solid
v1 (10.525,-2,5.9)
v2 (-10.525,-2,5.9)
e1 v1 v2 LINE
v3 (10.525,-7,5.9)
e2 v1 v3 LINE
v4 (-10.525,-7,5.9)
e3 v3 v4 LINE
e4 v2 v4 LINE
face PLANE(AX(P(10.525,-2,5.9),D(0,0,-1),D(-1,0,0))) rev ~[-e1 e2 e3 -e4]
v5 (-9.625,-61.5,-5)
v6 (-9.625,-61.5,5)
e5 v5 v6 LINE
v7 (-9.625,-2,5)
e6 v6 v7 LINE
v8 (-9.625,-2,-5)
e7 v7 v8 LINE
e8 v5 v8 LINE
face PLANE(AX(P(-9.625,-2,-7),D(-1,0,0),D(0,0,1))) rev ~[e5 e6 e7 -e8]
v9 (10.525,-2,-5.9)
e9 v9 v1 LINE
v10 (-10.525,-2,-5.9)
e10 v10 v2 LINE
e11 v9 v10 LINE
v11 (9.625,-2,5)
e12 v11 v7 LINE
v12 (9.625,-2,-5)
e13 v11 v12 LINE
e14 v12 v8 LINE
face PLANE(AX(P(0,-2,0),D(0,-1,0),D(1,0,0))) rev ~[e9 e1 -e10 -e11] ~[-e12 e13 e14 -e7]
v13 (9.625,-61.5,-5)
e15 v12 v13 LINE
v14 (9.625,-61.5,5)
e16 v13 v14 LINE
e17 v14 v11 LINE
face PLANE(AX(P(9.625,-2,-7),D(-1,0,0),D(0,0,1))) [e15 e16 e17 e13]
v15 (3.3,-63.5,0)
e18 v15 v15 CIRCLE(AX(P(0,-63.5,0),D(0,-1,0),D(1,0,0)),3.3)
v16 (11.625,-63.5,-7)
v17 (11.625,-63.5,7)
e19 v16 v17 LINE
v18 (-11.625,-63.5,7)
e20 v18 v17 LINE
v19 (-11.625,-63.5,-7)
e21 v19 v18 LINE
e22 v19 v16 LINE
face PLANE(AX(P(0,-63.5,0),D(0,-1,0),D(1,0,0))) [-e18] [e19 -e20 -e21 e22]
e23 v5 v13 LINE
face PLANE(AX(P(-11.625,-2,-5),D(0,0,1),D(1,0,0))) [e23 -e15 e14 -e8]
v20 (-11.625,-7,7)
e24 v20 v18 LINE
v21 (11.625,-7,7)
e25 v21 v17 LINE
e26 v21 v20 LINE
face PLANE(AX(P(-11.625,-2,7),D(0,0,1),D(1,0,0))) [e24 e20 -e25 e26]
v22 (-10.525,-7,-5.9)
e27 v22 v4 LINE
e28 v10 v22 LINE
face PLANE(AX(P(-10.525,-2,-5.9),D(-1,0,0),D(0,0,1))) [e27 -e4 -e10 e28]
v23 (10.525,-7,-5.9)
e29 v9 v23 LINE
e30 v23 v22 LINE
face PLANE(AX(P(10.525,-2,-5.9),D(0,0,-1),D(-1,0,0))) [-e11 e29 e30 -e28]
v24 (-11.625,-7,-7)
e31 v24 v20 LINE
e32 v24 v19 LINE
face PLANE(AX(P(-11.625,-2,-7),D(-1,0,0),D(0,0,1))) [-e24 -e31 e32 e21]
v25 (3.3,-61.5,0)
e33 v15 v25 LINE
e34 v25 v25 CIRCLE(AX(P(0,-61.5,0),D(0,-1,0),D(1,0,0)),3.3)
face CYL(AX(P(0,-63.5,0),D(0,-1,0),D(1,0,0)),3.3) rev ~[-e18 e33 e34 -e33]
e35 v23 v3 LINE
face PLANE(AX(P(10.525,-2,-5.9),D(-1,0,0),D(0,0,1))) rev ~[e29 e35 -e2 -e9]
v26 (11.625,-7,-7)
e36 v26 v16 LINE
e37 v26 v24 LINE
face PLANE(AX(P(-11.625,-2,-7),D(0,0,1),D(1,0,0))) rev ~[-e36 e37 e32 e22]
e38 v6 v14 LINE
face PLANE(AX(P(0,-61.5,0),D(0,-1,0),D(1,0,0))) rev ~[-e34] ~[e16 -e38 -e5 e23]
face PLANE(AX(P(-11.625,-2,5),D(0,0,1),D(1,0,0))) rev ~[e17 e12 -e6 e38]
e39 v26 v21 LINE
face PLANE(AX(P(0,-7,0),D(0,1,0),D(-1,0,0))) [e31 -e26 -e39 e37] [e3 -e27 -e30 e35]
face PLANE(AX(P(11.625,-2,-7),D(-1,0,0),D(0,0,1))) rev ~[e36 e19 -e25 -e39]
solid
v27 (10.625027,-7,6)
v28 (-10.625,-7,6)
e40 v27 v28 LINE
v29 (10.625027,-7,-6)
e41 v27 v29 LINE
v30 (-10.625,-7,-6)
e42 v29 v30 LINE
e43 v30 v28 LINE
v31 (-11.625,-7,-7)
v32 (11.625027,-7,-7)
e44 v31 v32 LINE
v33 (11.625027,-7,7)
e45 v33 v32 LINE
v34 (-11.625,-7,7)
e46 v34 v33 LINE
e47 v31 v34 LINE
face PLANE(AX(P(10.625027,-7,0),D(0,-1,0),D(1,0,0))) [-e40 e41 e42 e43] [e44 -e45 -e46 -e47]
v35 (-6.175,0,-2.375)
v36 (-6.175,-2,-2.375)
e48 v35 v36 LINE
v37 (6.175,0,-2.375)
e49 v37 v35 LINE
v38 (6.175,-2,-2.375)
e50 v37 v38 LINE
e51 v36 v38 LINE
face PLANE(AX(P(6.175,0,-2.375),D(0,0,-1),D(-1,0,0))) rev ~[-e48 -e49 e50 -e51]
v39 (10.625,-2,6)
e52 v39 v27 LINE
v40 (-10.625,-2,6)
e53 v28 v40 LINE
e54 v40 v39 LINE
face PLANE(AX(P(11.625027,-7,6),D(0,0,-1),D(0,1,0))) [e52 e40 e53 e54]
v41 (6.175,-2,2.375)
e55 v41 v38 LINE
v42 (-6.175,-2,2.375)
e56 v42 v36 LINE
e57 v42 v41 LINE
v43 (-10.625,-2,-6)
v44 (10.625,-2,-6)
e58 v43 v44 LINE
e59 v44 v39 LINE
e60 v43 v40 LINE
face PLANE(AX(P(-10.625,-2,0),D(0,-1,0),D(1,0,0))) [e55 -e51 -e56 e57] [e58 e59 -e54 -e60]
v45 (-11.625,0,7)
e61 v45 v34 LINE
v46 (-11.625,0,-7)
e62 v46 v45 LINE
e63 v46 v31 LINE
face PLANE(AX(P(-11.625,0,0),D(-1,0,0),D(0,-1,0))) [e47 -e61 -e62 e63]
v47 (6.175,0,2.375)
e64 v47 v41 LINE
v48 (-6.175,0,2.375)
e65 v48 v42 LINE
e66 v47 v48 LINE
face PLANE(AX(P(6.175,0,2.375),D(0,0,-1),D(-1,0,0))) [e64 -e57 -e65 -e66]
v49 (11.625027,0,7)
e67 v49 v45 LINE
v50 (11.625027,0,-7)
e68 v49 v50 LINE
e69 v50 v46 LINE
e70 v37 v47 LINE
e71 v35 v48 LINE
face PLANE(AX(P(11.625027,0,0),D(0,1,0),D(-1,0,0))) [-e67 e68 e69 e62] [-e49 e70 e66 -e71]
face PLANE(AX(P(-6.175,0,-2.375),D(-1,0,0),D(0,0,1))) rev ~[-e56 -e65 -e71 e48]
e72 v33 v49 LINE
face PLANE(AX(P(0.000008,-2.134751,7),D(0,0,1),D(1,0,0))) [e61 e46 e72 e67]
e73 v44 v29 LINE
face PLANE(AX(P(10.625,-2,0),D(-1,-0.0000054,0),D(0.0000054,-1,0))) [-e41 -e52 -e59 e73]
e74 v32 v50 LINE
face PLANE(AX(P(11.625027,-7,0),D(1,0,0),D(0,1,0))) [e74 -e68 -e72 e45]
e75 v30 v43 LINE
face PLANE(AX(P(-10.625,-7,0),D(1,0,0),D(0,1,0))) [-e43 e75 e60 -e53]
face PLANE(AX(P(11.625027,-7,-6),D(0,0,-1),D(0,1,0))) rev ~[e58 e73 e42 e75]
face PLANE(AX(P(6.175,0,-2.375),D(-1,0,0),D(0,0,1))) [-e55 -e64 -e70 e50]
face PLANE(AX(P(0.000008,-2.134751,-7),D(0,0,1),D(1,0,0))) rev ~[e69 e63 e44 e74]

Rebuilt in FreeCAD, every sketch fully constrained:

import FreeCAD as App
import Part
import Sketcher
Q = App.Units.Quantity


def faces_at(feature, points):
    """Names of the faces that lie closest to the given points."""
    faces = feature.Shape.Faces
    near = lambda p: min(range(len(faces)), key=lambda i: faces[i].distToShape(Part.Vertex(*p))[0])
    return sorted({f"Face{near(p) + 1}" for p in points})

doc = App.newDocument("Part")
body = doc.addObject("PartDesign::Body", "Body")

# Sketch on XY plane
sketch1 = doc.addObject("Sketcher::SketchObject", "Sketch")
body.addObject(sketch1)
sketch1.AttachmentSupport = (doc.XY_Plane, [""])
sketch1.MapMode = "FlatFace"
sketch1.addGeometry([
    Part.LineSegment(App.Vector(11.6, 0, 0), App.Vector(-11.6, 0, 0)),  # 0
    Part.LineSegment(App.Vector(-11.6, 0, 0), App.Vector(-11.6, -7, 0)),  # 1
    Part.LineSegment(App.Vector(-11.6, -7, 0), App.Vector(-10.6, -7, 0)),  # 2
    Part.LineSegment(App.Vector(-10.6, -7, 0), App.Vector(-10.6, -2, 0)),  # 3
    Part.LineSegment(App.Vector(-10.6, -2, 0), App.Vector(10.6, -2, 0)),  # 4
    Part.LineSegment(App.Vector(10.6, -2, 0), App.Vector(10.6, -7, 0)),  # 5
    Part.LineSegment(App.Vector(10.6, -7, 0), App.Vector(11.6, -7, 0)),  # 6
    Part.LineSegment(App.Vector(11.6, -7, 0), App.Vector(11.6, 0, 0)),  # 7
], False)
sketch1.addConstraint([
    Sketcher.Constraint("Coincident", 0, 2, 1, 1),
    Sketcher.Constraint("Coincident", 1, 2, 2, 1),
    Sketcher.Constraint("Coincident", 2, 2, 3, 1),
    Sketcher.Constraint("Coincident", 3, 2, 4, 1),
    Sketcher.Constraint("Coincident", 4, 2, 5, 1),
    Sketcher.Constraint("Coincident", 5, 2, 6, 1),
    Sketcher.Constraint("Coincident", 6, 2, 7, 1),
    Sketcher.Constraint("Coincident", 7, 2, 0, 1),
    Sketcher.Constraint("Horizontal", 0),
    Sketcher.Constraint("Vertical", 1),
    Sketcher.Constraint("Horizontal", 2),
    Sketcher.Constraint("Vertical", 3),
    Sketcher.Constraint("Horizontal", 4),
    Sketcher.Constraint("Horizontal", 6),
    Sketcher.Constraint("Vertical", 7),
    Sketcher.Constraint("PointOnObject", 0, 2, -1),
    Sketcher.Constraint("Horizontal", 2, 2, 5, 2),
    Sketcher.Constraint("Equal", 2, 6),
    Sketcher.Constraint("DistanceX", 2, 1, 2, 2, Q("1 mm")),
    Sketcher.Constraint("DistanceY", 1, 2, 1, 1, Q("7 mm")),
    Sketcher.Constraint("DistanceY", 3, 1, 3, 2, Q("5 mm")),
    Sketcher.Constraint("DistanceX", 4, 1, 4, 2, Q("21.25 mm")),
    Sketcher.Constraint("DistanceX", 0, 2, -1, 1, Q("11.625 mm")),
    Sketcher.Constraint("DistanceX", 0, 2, 0, 1, Q("23.250027 mm")),
])
pad1 = doc.addObject("PartDesign::Pad", "Pad")
body.addObject(pad1)
pad1.Profile = sketch1
pad1.Type = "TwoLengths"
pad1.Length = 7
pad1.Length2 = 7

# Sketch on YZ plane
sketch2 = doc.addObject("Sketcher::SketchObject", "Sketch001")
body.addObject(sketch2)
sketch2.AttachmentSupport = (doc.YZ_Plane, [""])
sketch2.MapMode = "FlatFace"
sketch2.AttachmentOffset = App.Placement(App.Vector(0, 0, 11.625027), App.Rotation())
sketch2.addGeometry([
    Part.LineSegment(App.Vector(-7, 7, 0), App.Vector(-7, 6, 0)),  # 0
    Part.LineSegment(App.Vector(-7, 6, 0), App.Vector(0, 6, 0)),  # 1
    Part.LineSegment(App.Vector(0, 6, 0), App.Vector(0, 7, 0)),  # 2
    Part.LineSegment(App.Vector(0, 7, 0), App.Vector(-7, 7, 0)),  # 3
    Part.LineSegment(App.Vector(-7, -6, 0), App.Vector(-7, -7, 0)),  # 4
    Part.LineSegment(App.Vector(-7, -7, 0), App.Vector(0, -7, 0)),  # 5
    Part.LineSegment(App.Vector(0, -7, 0), App.Vector(0, -6, 0)),  # 6
    Part.LineSegment(App.Vector(0, -6, 0), App.Vector(-7, -6, 0)),  # 7
], False)
sketch2.addConstraint([
    Sketcher.Constraint("Coincident", 0, 2, 1, 1),
    Sketcher.Constraint("Coincident", 1, 2, 2, 1),
    Sketcher.Constraint("Coincident", 2, 2, 3, 1),
    Sketcher.Constraint("Coincident", 3, 2, 0, 1),
    Sketcher.Constraint("Coincident", 4, 2, 5, 1),
    Sketcher.Constraint("Coincident", 5, 2, 6, 1),
    Sketcher.Constraint("Coincident", 6, 2, 7, 1),
    Sketcher.Constraint("Coincident", 7, 2, 4, 1),
    Sketcher.Constraint("Vertical", 0),
    Sketcher.Constraint("Horizontal", 1),
    Sketcher.Constraint("Vertical", 2),
    Sketcher.Constraint("Horizontal", 3),
    Sketcher.Constraint("Vertical", 4),
    Sketcher.Constraint("Horizontal", 5),
    Sketcher.Constraint("Vertical", 6),
    Sketcher.Constraint("Horizontal", 7),
    Sketcher.Constraint("Symmetric", 2, 2, 5, 2, -1, 1),
    Sketcher.Constraint("Symmetric", 1, 2, 6, 2, -1),
    Sketcher.Constraint("Vertical", 3, 2, 4, 2),
    Sketcher.Constraint("DistanceX", 1, 1, 1, 2, Q("7 mm")),
    Sketcher.Constraint("DistanceY", 0, 2, 0, 1, Q("1 mm")),
    Sketcher.Constraint("DistanceY", -1, 1, 0, 2, Q("6 mm")),
])
pad2 = doc.addObject("PartDesign::Pad", "Pad001")
body.addObject(pad2)
pad2.Profile = sketch2
pad2.Length = 23.250027
pad2.Reversed = True

# Sketch on XZ plane
sketch3 = doc.addObject("Sketcher::SketchObject", "Sketch002")
body.addObject(sketch3)
sketch3.AttachmentSupport = (doc.XZ_Plane, [""])
sketch3.MapMode = "FlatFace"
sketch3.addGeometry([
    Part.LineSegment(App.Vector(6.2, 2.4, 0), App.Vector(6.2, -2.4, 0)),
    Part.LineSegment(App.Vector(6.2, -2.4, 0), App.Vector(-6.2, -2.4, 0)),
    Part.LineSegment(App.Vector(-6.2, -2.4, 0), App.Vector(-6.2, 2.4, 0)),
    Part.LineSegment(App.Vector(-6.2, 2.4, 0), App.Vector(6.2, 2.4, 0)),
], False)
sketch3.addConstraint([
    Sketcher.Constraint("Coincident", 0, 2, 1, 1),
    Sketcher.Constraint("Coincident", 1, 2, 2, 1),
    Sketcher.Constraint("Coincident", 2, 2, 3, 1),
    Sketcher.Constraint("Coincident", 3, 2, 0, 1),
    Sketcher.Constraint("Vertical", 0),
    Sketcher.Constraint("Horizontal", 1),
    Sketcher.Constraint("Vertical", 2),
    Sketcher.Constraint("Horizontal", 3),
    Sketcher.Constraint("Symmetric", 0, 2, 2, 2, -1, 1),
    Sketcher.Constraint("DistanceX", 1, 2, 1, 1, Q("12.35 mm")),
    Sketcher.Constraint("DistanceY", 0, 2, 0, 1, Q("4.75 mm")),
])
pocket1 = doc.addObject("PartDesign::Pocket", "Pocket")
body.addObject(pocket1)
pocket1.Profile = sketch3
pocket1.Type = "ThroughAll"
pocket1.Reversed = True
body2 = doc.addObject("PartDesign::Body", "Body001")

# Sketch on XZ plane
sketch4 = doc.addObject("Sketcher::SketchObject", "Sketch003")
body2.addObject(sketch4)
sketch4.AttachmentSupport = (doc.getObject("XZ_Plane001"), [""])
sketch4.MapMode = "FlatFace"
sketch4.AttachmentOffset = App.Placement(App.Vector(0, 0, 2), App.Rotation())
sketch4.addGeometry([
    Part.LineSegment(App.Vector(-12, 7, 0), App.Vector(-12, -7, 0)),
    Part.LineSegment(App.Vector(-12, -7, 0), App.Vector(12, -7, 0)),
    Part.LineSegment(App.Vector(12, -7, 0), App.Vector(12, 7, 0)),
    Part.LineSegment(App.Vector(12, 7, 0), App.Vector(-12, 7, 0)),
], False)
sketch4.addConstraint([
    Sketcher.Constraint("Coincident", 0, 2, 1, 1),
    Sketcher.Constraint("Coincident", 1, 2, 2, 1),
    Sketcher.Constraint("Coincident", 2, 2, 3, 1),
    Sketcher.Constraint("Coincident", 3, 2, 0, 1),
    Sketcher.Constraint("Vertical", 0),
    Sketcher.Constraint("Horizontal", 1),
    Sketcher.Constraint("Vertical", 2),
    Sketcher.Constraint("Horizontal", 3),
    Sketcher.Constraint("Symmetric", 0, 2, 2, 2, -1, 1),
    Sketcher.Constraint("DistanceY", 0, 2, 0, 1, Q("14 mm")),
    Sketcher.Constraint("DistanceX", 1, 1, 1, 2, Q("23.25 mm")),
])
pad3 = doc.addObject("PartDesign::Pad", "Pad002")
body2.addObject(pad3)
pad3.Profile = sketch4
pad3.Length = 61.5
doc.recompute()

thickness = doc.addObject("PartDesign::Thickness", "Thickness")
body2.addObject(thickness)
thickness.Base = (pad3, faces_at(pad3, [(0, -2, 0)]))
thickness.Value = 2
thickness.Reversed = True
thickness.Join = "Intersection"

# Sketch on XZ plane
sketch5 = doc.addObject("Sketcher::SketchObject", "Sketch004")
body2.addObject(sketch5)
sketch5.AttachmentSupport = (doc.getObject("XZ_Plane001"), [""])
sketch5.MapMode = "FlatFace"
sketch5.AttachmentOffset = App.Placement(App.Vector(0, 0, 2), App.Rotation())
sketch5.addGeometry([
    Part.LineSegment(App.Vector(12, 7, 0), App.Vector(12, -7, 0)),  # 0
    Part.LineSegment(App.Vector(12, -7, 0), App.Vector(-12, -7, 0)),  # 1
    Part.LineSegment(App.Vector(-12, -7, 0), App.Vector(-12, 7, 0)),  # 2
    Part.LineSegment(App.Vector(-12, 7, 0), App.Vector(12, 7, 0)),  # 3
    Part.LineSegment(App.Vector(-11, -6, 0), App.Vector(11, -6, 0)),  # 4
    Part.LineSegment(App.Vector(11, -6, 0), App.Vector(11, 6, 0)),  # 5
    Part.LineSegment(App.Vector(11, 6, 0), App.Vector(-11, 6, 0)),  # 6
    Part.LineSegment(App.Vector(-11, 6, 0), App.Vector(-11, -6, 0)),  # 7
], False)
sketch5.addConstraint([
    Sketcher.Constraint("Coincident", 0, 2, 1, 1),
    Sketcher.Constraint("Coincident", 1, 2, 2, 1),
    Sketcher.Constraint("Coincident", 2, 2, 3, 1),
    Sketcher.Constraint("Coincident", 3, 2, 0, 1),
    Sketcher.Constraint("Coincident", 4, 2, 5, 1),
    Sketcher.Constraint("Coincident", 5, 2, 6, 1),
    Sketcher.Constraint("Coincident", 6, 2, 7, 1),
    Sketcher.Constraint("Coincident", 7, 2, 4, 1),
    Sketcher.Constraint("Vertical", 0),
    Sketcher.Constraint("Horizontal", 1),
    Sketcher.Constraint("Vertical", 2),
    Sketcher.Constraint("Horizontal", 3),
    Sketcher.Constraint("Horizontal", 4),
    Sketcher.Constraint("Vertical", 5),
    Sketcher.Constraint("Horizontal", 6),
    Sketcher.Constraint("Vertical", 7),
    Sketcher.Constraint("Symmetric", 0, 2, 2, 2, -1, 1),
    Sketcher.Constraint("Symmetric", 4, 2, 6, 2, -1, 1),
    Sketcher.Constraint("DistanceY", 0, 2, 0, 1, Q("14 mm")),
    Sketcher.Constraint("DistanceY", 5, 1, 5, 2, Q("11.8 mm")),
    Sketcher.Constraint("DistanceX", 1, 2, 1, 1, Q("23.25 mm")),
    Sketcher.Constraint("DistanceX", 4, 1, 4, 2, Q("21.05 mm")),
])
pocket2 = doc.addObject("PartDesign::Pocket", "Pocket001")
body2.addObject(pocket2)
pocket2.Profile = sketch5
pocket2.Length = 5
pocket2.Reversed = True

# Sketch on XZ plane
sketch6 = doc.addObject("Sketcher::SketchObject", "Sketch005")
body2.addObject(sketch6)
sketch6.AttachmentSupport = (doc.getObject("XZ_Plane001"), [""])
sketch6.MapMode = "FlatFace"
sketch6.AttachmentOffset = App.Placement(App.Vector(0, 0, 63.5), App.Rotation())
sketch6.addGeometry(Part.Circle(App.Vector(0, 0, 0), App.Vector(0, 0, 1), 3.3), False)
sketch6.addConstraint([
    Sketcher.Constraint("Coincident", 0, 3, -1, 1),
    Sketcher.Constraint("Diameter", 0, Q("6.6 mm")),
])
pocket3 = doc.addObject("PartDesign::Pocket", "Pocket002")
body2.addObject(pocket3)
pocket3.Profile = sketch6
pocket3.Type = "ThroughAll"

doc.recompute()
